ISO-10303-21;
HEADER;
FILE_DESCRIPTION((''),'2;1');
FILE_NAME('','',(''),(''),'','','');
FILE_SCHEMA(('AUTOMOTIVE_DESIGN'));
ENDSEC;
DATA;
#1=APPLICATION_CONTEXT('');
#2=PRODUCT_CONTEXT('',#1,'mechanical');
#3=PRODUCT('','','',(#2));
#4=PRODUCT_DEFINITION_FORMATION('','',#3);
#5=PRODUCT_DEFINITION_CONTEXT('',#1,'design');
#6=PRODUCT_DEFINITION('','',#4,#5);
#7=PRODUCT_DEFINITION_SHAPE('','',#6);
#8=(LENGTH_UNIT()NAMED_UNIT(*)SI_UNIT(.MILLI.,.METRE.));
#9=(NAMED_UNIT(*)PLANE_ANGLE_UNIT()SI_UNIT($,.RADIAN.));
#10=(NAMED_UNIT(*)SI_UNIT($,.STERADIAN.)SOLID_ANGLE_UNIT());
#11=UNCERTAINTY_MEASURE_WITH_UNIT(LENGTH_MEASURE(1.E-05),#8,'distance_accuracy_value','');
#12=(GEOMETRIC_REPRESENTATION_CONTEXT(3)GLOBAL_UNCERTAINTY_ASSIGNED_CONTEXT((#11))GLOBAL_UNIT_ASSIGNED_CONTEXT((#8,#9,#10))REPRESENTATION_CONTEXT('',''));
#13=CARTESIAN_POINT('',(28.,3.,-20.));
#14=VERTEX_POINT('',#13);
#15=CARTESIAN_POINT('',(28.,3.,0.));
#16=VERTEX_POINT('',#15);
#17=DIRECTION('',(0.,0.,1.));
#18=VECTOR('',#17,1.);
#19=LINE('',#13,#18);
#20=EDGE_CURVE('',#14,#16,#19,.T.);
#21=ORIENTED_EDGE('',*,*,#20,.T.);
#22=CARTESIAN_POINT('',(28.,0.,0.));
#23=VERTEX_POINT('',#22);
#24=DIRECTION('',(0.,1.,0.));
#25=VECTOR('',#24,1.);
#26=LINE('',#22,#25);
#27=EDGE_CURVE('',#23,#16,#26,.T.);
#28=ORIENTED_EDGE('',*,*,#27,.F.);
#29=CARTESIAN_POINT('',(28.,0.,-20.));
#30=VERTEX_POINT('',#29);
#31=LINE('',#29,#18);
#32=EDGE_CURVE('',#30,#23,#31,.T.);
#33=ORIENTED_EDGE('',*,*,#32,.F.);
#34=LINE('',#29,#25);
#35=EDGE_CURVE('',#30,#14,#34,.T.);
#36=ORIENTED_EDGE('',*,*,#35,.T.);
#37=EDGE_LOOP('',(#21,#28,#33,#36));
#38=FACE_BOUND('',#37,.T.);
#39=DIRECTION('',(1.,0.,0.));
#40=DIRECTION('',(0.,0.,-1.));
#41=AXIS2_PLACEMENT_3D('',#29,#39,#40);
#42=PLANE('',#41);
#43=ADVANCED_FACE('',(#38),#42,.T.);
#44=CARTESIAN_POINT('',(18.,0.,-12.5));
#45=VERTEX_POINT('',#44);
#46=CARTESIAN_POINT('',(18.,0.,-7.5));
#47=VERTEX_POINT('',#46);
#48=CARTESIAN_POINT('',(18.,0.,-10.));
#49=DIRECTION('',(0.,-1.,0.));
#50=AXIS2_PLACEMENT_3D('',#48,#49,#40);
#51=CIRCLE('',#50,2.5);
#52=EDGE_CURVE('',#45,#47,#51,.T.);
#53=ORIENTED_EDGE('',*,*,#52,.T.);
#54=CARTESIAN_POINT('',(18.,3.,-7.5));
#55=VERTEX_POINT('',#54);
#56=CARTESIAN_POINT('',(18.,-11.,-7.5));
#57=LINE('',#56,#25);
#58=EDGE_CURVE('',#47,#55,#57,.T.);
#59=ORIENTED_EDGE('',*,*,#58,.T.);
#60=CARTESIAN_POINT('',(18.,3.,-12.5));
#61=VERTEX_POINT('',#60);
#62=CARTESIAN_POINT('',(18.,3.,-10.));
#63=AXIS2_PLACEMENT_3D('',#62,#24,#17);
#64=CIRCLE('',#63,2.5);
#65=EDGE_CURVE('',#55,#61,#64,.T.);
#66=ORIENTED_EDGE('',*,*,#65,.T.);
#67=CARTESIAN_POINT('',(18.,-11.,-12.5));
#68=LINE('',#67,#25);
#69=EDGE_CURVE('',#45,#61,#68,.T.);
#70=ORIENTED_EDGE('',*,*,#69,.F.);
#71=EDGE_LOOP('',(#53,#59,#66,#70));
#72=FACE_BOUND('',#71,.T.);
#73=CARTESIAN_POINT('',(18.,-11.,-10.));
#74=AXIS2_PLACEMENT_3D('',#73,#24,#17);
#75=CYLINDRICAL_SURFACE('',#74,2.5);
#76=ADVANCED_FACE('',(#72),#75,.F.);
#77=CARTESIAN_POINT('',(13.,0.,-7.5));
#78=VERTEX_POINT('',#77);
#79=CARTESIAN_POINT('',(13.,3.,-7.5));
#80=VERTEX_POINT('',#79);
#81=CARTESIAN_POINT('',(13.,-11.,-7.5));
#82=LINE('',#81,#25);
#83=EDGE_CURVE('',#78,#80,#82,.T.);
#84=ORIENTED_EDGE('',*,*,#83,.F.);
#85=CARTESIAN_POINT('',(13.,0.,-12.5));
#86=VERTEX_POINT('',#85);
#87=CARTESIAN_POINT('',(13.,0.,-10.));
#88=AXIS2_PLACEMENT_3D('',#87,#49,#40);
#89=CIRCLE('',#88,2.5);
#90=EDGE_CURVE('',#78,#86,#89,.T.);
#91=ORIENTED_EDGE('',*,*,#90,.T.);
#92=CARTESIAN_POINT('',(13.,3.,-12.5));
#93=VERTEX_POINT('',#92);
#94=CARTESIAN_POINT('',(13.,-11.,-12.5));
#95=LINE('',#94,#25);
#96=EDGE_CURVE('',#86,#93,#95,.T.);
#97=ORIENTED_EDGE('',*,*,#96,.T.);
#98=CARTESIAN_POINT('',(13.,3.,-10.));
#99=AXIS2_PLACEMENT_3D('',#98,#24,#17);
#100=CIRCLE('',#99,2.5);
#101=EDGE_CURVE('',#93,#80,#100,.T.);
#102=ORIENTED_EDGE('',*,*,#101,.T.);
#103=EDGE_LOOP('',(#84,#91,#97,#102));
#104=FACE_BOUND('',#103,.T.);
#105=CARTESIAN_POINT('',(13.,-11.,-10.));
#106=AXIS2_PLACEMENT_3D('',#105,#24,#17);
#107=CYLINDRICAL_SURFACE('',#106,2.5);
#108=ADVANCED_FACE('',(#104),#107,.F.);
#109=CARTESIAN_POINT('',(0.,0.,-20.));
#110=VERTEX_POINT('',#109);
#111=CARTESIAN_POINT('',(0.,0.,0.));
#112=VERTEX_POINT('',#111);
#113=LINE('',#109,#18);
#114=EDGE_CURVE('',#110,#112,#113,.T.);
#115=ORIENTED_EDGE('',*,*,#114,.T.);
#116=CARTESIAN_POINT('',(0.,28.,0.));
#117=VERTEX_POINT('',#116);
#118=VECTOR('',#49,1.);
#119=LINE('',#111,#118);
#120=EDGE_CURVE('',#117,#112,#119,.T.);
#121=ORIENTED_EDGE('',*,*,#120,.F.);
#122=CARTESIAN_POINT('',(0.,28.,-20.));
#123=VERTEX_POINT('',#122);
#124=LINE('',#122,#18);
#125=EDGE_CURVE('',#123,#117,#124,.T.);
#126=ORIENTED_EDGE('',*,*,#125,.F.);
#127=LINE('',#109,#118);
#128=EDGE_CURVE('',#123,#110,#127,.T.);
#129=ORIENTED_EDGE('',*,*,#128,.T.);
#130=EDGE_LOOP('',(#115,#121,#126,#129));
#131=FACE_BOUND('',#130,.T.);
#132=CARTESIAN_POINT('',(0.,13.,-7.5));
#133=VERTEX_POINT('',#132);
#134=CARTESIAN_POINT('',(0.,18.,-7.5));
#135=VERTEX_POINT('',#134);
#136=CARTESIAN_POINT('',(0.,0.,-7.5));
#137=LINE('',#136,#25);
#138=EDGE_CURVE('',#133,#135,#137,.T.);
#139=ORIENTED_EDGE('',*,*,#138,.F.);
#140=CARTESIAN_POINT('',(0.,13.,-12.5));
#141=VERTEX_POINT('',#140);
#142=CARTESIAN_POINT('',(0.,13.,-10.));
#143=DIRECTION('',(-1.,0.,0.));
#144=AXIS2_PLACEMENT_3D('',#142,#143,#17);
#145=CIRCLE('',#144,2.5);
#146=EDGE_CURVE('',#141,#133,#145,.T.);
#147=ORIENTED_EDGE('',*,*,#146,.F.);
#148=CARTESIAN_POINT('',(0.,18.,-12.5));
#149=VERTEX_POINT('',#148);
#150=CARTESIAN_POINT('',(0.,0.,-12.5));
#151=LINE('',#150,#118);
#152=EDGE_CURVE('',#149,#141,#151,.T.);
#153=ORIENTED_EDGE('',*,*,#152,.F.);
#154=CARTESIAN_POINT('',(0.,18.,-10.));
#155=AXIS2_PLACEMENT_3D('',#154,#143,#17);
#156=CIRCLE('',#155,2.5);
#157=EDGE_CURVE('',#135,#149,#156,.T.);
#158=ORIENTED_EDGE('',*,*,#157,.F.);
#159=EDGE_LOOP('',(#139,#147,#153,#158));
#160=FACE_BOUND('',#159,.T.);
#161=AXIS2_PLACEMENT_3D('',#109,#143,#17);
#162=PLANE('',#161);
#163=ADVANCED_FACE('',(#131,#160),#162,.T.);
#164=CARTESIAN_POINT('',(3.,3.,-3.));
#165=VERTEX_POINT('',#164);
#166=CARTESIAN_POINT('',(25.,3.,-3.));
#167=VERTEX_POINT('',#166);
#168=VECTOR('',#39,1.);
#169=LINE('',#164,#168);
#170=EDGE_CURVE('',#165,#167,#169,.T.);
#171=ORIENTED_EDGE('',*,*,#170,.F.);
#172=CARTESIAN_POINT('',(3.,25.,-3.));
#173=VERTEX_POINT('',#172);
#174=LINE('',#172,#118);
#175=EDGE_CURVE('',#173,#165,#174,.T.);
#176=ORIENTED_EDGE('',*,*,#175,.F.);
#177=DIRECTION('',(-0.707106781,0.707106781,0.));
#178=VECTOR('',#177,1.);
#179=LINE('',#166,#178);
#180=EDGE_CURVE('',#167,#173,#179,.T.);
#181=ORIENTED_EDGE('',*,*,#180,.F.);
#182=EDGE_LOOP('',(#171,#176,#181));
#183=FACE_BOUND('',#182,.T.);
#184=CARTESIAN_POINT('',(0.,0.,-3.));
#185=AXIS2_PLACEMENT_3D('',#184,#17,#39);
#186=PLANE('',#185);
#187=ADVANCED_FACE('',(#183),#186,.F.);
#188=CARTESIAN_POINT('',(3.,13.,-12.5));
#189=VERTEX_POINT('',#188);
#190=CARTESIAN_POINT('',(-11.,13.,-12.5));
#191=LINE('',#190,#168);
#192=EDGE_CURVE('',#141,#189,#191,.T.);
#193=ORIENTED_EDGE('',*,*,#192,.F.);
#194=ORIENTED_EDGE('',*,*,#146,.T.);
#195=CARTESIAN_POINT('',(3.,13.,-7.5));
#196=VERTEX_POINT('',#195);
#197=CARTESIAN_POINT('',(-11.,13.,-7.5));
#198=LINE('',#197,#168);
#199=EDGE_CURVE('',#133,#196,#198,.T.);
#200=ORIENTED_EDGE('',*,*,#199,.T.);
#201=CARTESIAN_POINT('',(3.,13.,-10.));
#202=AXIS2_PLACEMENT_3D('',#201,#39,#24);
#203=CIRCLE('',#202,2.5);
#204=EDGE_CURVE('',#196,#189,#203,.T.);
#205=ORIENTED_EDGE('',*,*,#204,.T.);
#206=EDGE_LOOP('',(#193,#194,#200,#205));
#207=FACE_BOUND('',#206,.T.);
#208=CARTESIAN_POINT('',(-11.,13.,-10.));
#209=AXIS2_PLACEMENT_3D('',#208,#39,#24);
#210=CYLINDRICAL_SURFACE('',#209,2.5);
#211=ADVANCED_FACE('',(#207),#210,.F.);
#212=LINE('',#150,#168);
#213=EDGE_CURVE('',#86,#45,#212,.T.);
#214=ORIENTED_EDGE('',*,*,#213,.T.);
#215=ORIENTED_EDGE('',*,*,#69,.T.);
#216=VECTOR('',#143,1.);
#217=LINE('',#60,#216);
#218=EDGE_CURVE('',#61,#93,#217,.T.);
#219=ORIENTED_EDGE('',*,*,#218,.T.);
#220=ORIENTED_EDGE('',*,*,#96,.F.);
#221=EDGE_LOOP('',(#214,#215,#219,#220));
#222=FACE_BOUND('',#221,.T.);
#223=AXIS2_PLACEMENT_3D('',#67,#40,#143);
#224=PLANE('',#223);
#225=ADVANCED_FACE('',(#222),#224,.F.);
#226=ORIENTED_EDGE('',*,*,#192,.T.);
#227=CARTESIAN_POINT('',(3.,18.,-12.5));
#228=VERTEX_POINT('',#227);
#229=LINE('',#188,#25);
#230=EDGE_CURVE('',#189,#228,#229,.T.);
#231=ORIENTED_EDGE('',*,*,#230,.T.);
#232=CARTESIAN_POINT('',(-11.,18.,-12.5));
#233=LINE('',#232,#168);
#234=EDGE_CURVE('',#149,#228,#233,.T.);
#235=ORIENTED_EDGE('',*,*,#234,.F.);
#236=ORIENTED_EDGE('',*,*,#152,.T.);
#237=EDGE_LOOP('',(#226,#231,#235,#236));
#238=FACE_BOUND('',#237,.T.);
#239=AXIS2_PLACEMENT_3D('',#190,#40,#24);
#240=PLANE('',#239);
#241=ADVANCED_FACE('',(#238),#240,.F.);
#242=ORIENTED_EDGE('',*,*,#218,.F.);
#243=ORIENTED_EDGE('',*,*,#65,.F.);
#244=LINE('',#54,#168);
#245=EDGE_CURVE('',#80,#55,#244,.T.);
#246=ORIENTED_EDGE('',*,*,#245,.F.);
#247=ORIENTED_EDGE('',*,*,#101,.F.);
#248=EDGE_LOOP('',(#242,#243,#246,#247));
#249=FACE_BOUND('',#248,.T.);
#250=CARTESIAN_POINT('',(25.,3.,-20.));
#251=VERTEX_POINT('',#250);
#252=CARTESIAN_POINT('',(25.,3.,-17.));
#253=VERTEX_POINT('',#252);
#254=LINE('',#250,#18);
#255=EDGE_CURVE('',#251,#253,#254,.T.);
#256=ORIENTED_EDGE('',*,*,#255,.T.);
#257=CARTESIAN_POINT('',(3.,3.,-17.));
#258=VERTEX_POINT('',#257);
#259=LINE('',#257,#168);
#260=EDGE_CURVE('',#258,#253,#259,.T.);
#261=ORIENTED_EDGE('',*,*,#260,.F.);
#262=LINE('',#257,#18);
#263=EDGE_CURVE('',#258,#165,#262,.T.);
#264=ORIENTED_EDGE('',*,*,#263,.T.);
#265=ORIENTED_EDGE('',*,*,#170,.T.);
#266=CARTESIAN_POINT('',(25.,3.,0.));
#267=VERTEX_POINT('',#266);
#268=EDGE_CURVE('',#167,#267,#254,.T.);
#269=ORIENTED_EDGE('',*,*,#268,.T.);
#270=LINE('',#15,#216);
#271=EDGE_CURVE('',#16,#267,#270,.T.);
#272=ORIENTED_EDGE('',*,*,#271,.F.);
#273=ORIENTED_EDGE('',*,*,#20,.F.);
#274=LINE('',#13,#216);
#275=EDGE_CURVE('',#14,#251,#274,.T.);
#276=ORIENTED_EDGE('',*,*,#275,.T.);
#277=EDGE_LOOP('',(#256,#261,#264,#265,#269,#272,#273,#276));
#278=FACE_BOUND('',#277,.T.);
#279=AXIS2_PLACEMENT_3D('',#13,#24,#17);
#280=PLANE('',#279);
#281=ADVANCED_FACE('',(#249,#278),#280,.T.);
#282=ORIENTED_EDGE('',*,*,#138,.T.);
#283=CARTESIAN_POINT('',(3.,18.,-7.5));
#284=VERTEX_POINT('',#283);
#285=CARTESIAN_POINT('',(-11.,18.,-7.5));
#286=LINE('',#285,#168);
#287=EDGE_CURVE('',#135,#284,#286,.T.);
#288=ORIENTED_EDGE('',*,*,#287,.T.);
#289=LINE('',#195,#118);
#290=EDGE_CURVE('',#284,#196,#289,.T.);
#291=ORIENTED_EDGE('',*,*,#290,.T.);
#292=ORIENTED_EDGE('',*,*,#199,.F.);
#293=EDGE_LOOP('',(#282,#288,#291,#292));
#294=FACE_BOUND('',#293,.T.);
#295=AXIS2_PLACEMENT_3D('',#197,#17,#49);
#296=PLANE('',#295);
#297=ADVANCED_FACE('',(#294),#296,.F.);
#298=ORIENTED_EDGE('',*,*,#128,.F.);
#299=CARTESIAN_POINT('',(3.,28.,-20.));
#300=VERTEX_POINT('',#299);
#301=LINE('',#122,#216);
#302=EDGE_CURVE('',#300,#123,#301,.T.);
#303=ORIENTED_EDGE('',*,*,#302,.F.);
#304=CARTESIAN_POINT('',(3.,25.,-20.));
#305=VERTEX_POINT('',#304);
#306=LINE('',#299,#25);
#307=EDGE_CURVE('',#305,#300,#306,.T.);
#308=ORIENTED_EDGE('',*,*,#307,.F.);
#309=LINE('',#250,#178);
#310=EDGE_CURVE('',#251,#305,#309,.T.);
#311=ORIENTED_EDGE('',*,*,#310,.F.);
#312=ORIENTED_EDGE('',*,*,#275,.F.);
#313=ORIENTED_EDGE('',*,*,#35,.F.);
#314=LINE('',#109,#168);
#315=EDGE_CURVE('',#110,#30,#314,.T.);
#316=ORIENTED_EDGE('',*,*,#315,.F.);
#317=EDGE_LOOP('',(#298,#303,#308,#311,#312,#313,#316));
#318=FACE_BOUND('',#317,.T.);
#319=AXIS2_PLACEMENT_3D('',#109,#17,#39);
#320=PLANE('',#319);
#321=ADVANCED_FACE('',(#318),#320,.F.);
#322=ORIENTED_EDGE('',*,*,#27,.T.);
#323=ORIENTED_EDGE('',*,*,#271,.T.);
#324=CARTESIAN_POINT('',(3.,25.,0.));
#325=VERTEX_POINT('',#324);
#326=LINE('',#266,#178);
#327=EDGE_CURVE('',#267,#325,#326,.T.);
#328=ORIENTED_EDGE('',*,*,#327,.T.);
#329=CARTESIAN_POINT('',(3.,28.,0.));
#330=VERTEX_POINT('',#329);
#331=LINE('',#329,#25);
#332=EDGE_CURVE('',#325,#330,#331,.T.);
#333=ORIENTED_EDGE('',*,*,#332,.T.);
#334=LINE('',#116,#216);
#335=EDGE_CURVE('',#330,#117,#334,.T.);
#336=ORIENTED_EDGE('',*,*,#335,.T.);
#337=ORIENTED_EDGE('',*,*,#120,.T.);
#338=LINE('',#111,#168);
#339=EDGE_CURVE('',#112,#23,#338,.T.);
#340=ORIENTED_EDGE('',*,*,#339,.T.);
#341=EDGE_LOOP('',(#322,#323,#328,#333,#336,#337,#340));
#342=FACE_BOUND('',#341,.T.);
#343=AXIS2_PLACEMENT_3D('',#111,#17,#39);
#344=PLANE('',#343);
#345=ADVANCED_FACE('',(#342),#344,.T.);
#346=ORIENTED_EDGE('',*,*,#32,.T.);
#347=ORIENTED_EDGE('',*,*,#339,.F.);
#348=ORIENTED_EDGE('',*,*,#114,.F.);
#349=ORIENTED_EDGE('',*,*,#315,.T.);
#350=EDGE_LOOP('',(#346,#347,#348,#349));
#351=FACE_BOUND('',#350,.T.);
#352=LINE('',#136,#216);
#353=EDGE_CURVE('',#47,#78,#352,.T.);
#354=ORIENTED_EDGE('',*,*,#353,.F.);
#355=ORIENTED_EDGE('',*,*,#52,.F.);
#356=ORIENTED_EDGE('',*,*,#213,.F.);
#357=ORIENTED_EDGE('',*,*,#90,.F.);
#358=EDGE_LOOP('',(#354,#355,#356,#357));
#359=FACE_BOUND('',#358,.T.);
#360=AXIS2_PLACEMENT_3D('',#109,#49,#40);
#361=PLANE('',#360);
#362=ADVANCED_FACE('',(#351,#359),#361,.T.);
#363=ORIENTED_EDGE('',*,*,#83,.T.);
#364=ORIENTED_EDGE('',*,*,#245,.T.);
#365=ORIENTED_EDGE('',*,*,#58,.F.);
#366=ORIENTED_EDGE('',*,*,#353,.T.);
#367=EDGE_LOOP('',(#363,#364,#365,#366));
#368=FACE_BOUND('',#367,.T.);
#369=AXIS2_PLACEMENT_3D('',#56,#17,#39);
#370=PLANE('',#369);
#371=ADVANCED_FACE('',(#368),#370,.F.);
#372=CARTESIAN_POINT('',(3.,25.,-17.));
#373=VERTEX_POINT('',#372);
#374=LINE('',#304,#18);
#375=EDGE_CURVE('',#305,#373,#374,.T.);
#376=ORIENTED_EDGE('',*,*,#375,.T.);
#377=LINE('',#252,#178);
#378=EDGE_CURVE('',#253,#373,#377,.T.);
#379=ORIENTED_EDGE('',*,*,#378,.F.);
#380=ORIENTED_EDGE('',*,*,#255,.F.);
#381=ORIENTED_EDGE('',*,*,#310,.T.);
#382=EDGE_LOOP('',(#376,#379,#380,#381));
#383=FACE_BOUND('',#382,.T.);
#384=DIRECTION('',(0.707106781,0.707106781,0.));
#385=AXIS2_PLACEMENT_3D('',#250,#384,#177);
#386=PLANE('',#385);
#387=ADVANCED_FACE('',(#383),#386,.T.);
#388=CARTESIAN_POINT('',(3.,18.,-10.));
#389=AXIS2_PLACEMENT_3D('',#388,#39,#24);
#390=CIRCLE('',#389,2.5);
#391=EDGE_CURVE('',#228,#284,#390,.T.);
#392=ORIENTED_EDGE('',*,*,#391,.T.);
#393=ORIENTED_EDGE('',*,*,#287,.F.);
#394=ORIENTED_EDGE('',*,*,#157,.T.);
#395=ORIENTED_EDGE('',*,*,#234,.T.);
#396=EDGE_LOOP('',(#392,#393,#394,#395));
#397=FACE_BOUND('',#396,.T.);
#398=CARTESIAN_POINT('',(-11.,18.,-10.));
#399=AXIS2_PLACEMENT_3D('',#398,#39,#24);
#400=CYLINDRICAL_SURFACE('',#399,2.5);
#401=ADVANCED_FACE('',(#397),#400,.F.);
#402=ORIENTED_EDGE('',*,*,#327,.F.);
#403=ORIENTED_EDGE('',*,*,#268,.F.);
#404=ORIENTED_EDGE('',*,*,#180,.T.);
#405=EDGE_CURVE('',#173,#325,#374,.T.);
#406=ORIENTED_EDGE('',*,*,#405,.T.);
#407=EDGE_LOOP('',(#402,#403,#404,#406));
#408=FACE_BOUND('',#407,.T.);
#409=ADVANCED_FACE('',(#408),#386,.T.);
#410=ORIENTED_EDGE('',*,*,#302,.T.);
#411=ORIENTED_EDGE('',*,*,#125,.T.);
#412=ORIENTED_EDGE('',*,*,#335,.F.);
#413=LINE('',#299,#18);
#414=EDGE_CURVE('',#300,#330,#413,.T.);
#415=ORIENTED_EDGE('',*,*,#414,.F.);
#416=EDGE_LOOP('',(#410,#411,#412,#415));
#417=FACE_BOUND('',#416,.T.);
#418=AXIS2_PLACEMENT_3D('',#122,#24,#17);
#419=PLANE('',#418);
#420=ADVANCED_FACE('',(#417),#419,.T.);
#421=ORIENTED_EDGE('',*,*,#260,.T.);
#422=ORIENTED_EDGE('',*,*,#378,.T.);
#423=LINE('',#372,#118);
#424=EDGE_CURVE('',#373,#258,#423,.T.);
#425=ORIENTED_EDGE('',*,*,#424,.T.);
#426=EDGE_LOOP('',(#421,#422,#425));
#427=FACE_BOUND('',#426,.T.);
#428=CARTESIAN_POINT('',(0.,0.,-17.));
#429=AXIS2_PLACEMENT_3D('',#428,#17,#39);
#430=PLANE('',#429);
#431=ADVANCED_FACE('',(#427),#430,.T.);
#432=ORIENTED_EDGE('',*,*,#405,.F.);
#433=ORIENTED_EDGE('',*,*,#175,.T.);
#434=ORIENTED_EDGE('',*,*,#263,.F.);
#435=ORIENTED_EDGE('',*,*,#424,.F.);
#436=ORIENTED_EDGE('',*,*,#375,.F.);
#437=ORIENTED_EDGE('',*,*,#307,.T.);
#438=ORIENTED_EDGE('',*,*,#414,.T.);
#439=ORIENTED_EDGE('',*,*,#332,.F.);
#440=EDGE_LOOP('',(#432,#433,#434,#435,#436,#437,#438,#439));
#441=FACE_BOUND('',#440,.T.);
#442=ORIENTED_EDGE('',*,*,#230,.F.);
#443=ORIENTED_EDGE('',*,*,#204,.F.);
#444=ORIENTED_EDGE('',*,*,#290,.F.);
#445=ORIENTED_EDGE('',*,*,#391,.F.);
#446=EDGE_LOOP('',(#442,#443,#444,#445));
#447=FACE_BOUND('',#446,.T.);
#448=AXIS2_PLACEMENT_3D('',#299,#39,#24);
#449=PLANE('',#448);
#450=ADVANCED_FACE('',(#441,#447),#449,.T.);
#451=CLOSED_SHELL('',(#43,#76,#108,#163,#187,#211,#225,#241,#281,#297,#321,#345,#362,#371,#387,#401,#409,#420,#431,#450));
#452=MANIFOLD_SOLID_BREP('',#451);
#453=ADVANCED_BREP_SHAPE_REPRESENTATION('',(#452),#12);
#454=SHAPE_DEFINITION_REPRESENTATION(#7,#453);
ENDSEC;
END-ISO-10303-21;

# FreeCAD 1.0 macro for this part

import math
import FreeCAD as App
import Part
import Sketcher
from FreeCAD import Vector
Q = App.Units.Quantity

doc = App.newDocument("Part")
body = doc.addObject("PartDesign::Body", "Body")

# Sketch on XY plane
sketch1 = body.newObject("Sketcher::SketchObject", "Sketch")
sketch1.AttachmentSupport = (doc.getObject("XY_Plane"), [""])
sketch1.MapMode = "FlatFace"
sketch1.addGeometry([
    Part.LineSegment(Vector(0, 28, 0), Vector(0, 0, 0)),  # 0
    Part.LineSegment(Vector(0, 0, 0), Vector(28, 0, 0)),  # 1
    Part.LineSegment(Vector(28, 0, 0), Vector(28, 3, 0)),  # 2
    Part.LineSegment(Vector(28, 3, 0), Vector(25, 3, 0)),  # 3
    Part.LineSegment(Vector(25, 3, 0), Vector(3, 25, 0)),  # 4
    Part.LineSegment(Vector(3, 25, 0), Vector(3, 28, 0)),  # 5
    Part.LineSegment(Vector(3, 28, 0), Vector(0, 28, 0)),  # 6
], False)
sketch1.addConstraint([
    Sketcher.Constraint("Coincident", 0, 2, 1, 1),
    Sketcher.Constraint("Coincident", 1, 2, 2, 1),
    Sketcher.Constraint("Coincident", 2, 2, 3, 1),
    Sketcher.Constraint("Coincident", 3, 2, 4, 1),
    Sketcher.Constraint("Coincident", 4, 2, 5, 1),
    Sketcher.Constraint("Coincident", 5, 2, 6, 1),
    Sketcher.Constraint("Coincident", 6, 2, 0, 1),
    Sketcher.Constraint("Vertical", 0),
    Sketcher.Constraint("Horizontal", 1),
    Sketcher.Constraint("Vertical", 2),
    Sketcher.Constraint("Horizontal", 3),
    Sketcher.Constraint("Vertical", 5),
    Sketcher.Constraint("Horizontal", 6),
    Sketcher.Constraint("Coincident", 0, 2, -1, 1),
    Sketcher.Constraint("Equal", 3, 6),
    Sketcher.Constraint("Equal", 1, 0),
    Sketcher.Constraint("Equal", 6, 2),
    Sketcher.Constraint("Equal", 2, 5),
    Sketcher.Constraint("DistanceX", 1, 1, 1, 2, Q("28 mm")),
    Sketcher.Constraint("DistanceX", 3, 2, 3, 1, Q("3 mm")),
])
pad1 = body.newObject("PartDesign::Pad", "Pad")
pad1.Profile = sketch1
pad1.Length = 20
pad1.Reversed = True

# Sketch on XY plane
sketch2 = body.newObject("Sketcher::SketchObject", "Sketch001")
sketch2.AttachmentSupport = (doc.getObject("XY_Plane"), [""])
sketch2.MapMode = "FlatFace"
sketch2.AttachmentOffset = App.Placement(Vector(0, 0, -3), App.Rotation())
sketch2.addGeometry([
    Part.LineSegment(Vector(3, 25, 0), Vector(3, 3, 0)),
    Part.LineSegment(Vector(3, 3, 0), Vector(25, 3, 0)),
    Part.LineSegment(Vector(25, 3, 0), Vector(3, 25, 0)),
], False)
sketch2.addConstraint([
    Sketcher.Constraint("Coincident", 0, 2, 1, 1),
    Sketcher.Constraint("Coincident", 1, 2, 2, 1),
    Sketcher.Constraint("Coincident", 2, 2, 0, 1),
    Sketcher.Constraint("Vertical", 0),
    Sketcher.Constraint("Horizontal", 1),
    Sketcher.Constraint("Equal", 1, 0),
    Sketcher.Constraint("DistanceX", 1, 1, 1, 2, Q("22 mm")),
    Sketcher.Constraint("DistanceX", -1, 1, 0, 2, Q("3 mm")),
    Sketcher.Constraint("DistanceY", -1, 1, 0, 2, Q("3 mm")),
])
pocket1 = body.newObject("PartDesign::Pocket", "Pocket")
pocket1.Profile = sketch2
pocket1.Length = 14

# Sketch on XZ plane
sketch3 = body.newObject("Sketcher::SketchObject", "Sketch002")
sketch3.AttachmentSupport = (doc.getObject("XZ_Plane"), [""])
sketch3.MapMode = "FlatFace"
sketch3.AttachmentOffset = App.Placement(Vector(0, 0, -3), App.Rotation())
sketch3.addGeometry([
    Part.LineSegment(Vector(13, -7.5, 0), Vector(18, -7.5, 0)),
    Part.ArcOfCircle(Part.Circle(Vector(18, -10, 0), Vector(0, 0, 1), 2.5), math.radians(-90), math.radians(90)),
    Part.LineSegment(Vector(18, -12.5, 0), Vector(13, -12.5, 0)),
    Part.ArcOfCircle(Part.Circle(Vector(13, -10, 0), Vector(0, 0, 1), 2.5), math.radians(90), math.radians(270)),
], False)
sketch3.addConstraint([
    Sketcher.Constraint("Tangent", 0, 2, 1, 2),
    Sketcher.Constraint("Tangent", 1, 1, 2, 1),
    Sketcher.Constraint("Tangent", 2, 2, 3, 2),
    Sketcher.Constraint("Tangent", 3, 1, 0, 1),
    Sketcher.Constraint("Horizontal", 0),
    Sketcher.Constraint("Horizontal", 2),
    Sketcher.Constraint("Radius", 1, Q("2.5 mm")),
    Sketcher.Constraint("DistanceX", 0, 1, 0, 2, Q("5 mm")),
    Sketcher.Constraint("DistanceX", -1, 1, 1, 3, Q("18 mm")),
    Sketcher.Constraint("DistanceY", 1, 3, -1, 1, Q("10 mm")),
])
pocket2 = body.newObject("PartDesign::Pocket", "Pocket001")
pocket2.Profile = sketch3
pocket2.Length = 14
pocket2.Reversed = True

# Sketch on YZ plane
sketch4 = body.newObject("Sketcher::SketchObject", "Sketch003")
sketch4.AttachmentSupport = (doc.getObject("YZ_Plane"), [""])
sketch4.MapMode = "FlatFace"
sketch4.AttachmentOffset = App.Placement(Vector(0, 0, 3), App.Rotation())
sketch4.addGeometry([
    Part.LineSegment(Vector(18, -7.5, 0), Vector(13, -7.5, 0)),
    Part.ArcOfCircle(Part.Circle(Vector(13, -10, 0), Vector(0, 0, 1), 2.5), math.radians(90), math.radians(270)),
    Part.LineSegment(Vector(13, -12.5, 0), Vector(18, -12.5, 0)),
    Part.ArcOfCircle(Part.Circle(Vector(18, -10, 0), Vector(0, 0, 1), 2.5), math.radians(-90), math.radians(90)),
], False)
sketch4.addConstraint([
    Sketcher.Constraint("Tangent", 0, 2, 1, 1),
    Sketcher.Constraint("Tangent", 1, 2, 2, 1),
    Sketcher.Constraint("Tangent", 2, 2, 3, 1),
    Sketcher.Constraint("Tangent", 3, 2, 0, 1),
    Sketcher.Constraint("Horizontal", 0),
    Sketcher.Constraint("Horizontal", 2),
    Sketcher.Constraint("Radius", 1, Q("2.5 mm")),
    Sketcher.Constraint("DistanceX", 0, 2, 0, 1, Q("5 mm")),
    Sketcher.Constraint("DistanceX", -1, 1, 1, 3, Q("13 mm")),
    Sketcher.Constraint("DistanceY", 1, 3, -1, 1, Q("10 mm")),
])
pocket3 = body.newObject("PartDesign::Pocket", "Pocket002")
pocket3.Profile = sketch4
pocket3.Length = 14

doc.recompute()
